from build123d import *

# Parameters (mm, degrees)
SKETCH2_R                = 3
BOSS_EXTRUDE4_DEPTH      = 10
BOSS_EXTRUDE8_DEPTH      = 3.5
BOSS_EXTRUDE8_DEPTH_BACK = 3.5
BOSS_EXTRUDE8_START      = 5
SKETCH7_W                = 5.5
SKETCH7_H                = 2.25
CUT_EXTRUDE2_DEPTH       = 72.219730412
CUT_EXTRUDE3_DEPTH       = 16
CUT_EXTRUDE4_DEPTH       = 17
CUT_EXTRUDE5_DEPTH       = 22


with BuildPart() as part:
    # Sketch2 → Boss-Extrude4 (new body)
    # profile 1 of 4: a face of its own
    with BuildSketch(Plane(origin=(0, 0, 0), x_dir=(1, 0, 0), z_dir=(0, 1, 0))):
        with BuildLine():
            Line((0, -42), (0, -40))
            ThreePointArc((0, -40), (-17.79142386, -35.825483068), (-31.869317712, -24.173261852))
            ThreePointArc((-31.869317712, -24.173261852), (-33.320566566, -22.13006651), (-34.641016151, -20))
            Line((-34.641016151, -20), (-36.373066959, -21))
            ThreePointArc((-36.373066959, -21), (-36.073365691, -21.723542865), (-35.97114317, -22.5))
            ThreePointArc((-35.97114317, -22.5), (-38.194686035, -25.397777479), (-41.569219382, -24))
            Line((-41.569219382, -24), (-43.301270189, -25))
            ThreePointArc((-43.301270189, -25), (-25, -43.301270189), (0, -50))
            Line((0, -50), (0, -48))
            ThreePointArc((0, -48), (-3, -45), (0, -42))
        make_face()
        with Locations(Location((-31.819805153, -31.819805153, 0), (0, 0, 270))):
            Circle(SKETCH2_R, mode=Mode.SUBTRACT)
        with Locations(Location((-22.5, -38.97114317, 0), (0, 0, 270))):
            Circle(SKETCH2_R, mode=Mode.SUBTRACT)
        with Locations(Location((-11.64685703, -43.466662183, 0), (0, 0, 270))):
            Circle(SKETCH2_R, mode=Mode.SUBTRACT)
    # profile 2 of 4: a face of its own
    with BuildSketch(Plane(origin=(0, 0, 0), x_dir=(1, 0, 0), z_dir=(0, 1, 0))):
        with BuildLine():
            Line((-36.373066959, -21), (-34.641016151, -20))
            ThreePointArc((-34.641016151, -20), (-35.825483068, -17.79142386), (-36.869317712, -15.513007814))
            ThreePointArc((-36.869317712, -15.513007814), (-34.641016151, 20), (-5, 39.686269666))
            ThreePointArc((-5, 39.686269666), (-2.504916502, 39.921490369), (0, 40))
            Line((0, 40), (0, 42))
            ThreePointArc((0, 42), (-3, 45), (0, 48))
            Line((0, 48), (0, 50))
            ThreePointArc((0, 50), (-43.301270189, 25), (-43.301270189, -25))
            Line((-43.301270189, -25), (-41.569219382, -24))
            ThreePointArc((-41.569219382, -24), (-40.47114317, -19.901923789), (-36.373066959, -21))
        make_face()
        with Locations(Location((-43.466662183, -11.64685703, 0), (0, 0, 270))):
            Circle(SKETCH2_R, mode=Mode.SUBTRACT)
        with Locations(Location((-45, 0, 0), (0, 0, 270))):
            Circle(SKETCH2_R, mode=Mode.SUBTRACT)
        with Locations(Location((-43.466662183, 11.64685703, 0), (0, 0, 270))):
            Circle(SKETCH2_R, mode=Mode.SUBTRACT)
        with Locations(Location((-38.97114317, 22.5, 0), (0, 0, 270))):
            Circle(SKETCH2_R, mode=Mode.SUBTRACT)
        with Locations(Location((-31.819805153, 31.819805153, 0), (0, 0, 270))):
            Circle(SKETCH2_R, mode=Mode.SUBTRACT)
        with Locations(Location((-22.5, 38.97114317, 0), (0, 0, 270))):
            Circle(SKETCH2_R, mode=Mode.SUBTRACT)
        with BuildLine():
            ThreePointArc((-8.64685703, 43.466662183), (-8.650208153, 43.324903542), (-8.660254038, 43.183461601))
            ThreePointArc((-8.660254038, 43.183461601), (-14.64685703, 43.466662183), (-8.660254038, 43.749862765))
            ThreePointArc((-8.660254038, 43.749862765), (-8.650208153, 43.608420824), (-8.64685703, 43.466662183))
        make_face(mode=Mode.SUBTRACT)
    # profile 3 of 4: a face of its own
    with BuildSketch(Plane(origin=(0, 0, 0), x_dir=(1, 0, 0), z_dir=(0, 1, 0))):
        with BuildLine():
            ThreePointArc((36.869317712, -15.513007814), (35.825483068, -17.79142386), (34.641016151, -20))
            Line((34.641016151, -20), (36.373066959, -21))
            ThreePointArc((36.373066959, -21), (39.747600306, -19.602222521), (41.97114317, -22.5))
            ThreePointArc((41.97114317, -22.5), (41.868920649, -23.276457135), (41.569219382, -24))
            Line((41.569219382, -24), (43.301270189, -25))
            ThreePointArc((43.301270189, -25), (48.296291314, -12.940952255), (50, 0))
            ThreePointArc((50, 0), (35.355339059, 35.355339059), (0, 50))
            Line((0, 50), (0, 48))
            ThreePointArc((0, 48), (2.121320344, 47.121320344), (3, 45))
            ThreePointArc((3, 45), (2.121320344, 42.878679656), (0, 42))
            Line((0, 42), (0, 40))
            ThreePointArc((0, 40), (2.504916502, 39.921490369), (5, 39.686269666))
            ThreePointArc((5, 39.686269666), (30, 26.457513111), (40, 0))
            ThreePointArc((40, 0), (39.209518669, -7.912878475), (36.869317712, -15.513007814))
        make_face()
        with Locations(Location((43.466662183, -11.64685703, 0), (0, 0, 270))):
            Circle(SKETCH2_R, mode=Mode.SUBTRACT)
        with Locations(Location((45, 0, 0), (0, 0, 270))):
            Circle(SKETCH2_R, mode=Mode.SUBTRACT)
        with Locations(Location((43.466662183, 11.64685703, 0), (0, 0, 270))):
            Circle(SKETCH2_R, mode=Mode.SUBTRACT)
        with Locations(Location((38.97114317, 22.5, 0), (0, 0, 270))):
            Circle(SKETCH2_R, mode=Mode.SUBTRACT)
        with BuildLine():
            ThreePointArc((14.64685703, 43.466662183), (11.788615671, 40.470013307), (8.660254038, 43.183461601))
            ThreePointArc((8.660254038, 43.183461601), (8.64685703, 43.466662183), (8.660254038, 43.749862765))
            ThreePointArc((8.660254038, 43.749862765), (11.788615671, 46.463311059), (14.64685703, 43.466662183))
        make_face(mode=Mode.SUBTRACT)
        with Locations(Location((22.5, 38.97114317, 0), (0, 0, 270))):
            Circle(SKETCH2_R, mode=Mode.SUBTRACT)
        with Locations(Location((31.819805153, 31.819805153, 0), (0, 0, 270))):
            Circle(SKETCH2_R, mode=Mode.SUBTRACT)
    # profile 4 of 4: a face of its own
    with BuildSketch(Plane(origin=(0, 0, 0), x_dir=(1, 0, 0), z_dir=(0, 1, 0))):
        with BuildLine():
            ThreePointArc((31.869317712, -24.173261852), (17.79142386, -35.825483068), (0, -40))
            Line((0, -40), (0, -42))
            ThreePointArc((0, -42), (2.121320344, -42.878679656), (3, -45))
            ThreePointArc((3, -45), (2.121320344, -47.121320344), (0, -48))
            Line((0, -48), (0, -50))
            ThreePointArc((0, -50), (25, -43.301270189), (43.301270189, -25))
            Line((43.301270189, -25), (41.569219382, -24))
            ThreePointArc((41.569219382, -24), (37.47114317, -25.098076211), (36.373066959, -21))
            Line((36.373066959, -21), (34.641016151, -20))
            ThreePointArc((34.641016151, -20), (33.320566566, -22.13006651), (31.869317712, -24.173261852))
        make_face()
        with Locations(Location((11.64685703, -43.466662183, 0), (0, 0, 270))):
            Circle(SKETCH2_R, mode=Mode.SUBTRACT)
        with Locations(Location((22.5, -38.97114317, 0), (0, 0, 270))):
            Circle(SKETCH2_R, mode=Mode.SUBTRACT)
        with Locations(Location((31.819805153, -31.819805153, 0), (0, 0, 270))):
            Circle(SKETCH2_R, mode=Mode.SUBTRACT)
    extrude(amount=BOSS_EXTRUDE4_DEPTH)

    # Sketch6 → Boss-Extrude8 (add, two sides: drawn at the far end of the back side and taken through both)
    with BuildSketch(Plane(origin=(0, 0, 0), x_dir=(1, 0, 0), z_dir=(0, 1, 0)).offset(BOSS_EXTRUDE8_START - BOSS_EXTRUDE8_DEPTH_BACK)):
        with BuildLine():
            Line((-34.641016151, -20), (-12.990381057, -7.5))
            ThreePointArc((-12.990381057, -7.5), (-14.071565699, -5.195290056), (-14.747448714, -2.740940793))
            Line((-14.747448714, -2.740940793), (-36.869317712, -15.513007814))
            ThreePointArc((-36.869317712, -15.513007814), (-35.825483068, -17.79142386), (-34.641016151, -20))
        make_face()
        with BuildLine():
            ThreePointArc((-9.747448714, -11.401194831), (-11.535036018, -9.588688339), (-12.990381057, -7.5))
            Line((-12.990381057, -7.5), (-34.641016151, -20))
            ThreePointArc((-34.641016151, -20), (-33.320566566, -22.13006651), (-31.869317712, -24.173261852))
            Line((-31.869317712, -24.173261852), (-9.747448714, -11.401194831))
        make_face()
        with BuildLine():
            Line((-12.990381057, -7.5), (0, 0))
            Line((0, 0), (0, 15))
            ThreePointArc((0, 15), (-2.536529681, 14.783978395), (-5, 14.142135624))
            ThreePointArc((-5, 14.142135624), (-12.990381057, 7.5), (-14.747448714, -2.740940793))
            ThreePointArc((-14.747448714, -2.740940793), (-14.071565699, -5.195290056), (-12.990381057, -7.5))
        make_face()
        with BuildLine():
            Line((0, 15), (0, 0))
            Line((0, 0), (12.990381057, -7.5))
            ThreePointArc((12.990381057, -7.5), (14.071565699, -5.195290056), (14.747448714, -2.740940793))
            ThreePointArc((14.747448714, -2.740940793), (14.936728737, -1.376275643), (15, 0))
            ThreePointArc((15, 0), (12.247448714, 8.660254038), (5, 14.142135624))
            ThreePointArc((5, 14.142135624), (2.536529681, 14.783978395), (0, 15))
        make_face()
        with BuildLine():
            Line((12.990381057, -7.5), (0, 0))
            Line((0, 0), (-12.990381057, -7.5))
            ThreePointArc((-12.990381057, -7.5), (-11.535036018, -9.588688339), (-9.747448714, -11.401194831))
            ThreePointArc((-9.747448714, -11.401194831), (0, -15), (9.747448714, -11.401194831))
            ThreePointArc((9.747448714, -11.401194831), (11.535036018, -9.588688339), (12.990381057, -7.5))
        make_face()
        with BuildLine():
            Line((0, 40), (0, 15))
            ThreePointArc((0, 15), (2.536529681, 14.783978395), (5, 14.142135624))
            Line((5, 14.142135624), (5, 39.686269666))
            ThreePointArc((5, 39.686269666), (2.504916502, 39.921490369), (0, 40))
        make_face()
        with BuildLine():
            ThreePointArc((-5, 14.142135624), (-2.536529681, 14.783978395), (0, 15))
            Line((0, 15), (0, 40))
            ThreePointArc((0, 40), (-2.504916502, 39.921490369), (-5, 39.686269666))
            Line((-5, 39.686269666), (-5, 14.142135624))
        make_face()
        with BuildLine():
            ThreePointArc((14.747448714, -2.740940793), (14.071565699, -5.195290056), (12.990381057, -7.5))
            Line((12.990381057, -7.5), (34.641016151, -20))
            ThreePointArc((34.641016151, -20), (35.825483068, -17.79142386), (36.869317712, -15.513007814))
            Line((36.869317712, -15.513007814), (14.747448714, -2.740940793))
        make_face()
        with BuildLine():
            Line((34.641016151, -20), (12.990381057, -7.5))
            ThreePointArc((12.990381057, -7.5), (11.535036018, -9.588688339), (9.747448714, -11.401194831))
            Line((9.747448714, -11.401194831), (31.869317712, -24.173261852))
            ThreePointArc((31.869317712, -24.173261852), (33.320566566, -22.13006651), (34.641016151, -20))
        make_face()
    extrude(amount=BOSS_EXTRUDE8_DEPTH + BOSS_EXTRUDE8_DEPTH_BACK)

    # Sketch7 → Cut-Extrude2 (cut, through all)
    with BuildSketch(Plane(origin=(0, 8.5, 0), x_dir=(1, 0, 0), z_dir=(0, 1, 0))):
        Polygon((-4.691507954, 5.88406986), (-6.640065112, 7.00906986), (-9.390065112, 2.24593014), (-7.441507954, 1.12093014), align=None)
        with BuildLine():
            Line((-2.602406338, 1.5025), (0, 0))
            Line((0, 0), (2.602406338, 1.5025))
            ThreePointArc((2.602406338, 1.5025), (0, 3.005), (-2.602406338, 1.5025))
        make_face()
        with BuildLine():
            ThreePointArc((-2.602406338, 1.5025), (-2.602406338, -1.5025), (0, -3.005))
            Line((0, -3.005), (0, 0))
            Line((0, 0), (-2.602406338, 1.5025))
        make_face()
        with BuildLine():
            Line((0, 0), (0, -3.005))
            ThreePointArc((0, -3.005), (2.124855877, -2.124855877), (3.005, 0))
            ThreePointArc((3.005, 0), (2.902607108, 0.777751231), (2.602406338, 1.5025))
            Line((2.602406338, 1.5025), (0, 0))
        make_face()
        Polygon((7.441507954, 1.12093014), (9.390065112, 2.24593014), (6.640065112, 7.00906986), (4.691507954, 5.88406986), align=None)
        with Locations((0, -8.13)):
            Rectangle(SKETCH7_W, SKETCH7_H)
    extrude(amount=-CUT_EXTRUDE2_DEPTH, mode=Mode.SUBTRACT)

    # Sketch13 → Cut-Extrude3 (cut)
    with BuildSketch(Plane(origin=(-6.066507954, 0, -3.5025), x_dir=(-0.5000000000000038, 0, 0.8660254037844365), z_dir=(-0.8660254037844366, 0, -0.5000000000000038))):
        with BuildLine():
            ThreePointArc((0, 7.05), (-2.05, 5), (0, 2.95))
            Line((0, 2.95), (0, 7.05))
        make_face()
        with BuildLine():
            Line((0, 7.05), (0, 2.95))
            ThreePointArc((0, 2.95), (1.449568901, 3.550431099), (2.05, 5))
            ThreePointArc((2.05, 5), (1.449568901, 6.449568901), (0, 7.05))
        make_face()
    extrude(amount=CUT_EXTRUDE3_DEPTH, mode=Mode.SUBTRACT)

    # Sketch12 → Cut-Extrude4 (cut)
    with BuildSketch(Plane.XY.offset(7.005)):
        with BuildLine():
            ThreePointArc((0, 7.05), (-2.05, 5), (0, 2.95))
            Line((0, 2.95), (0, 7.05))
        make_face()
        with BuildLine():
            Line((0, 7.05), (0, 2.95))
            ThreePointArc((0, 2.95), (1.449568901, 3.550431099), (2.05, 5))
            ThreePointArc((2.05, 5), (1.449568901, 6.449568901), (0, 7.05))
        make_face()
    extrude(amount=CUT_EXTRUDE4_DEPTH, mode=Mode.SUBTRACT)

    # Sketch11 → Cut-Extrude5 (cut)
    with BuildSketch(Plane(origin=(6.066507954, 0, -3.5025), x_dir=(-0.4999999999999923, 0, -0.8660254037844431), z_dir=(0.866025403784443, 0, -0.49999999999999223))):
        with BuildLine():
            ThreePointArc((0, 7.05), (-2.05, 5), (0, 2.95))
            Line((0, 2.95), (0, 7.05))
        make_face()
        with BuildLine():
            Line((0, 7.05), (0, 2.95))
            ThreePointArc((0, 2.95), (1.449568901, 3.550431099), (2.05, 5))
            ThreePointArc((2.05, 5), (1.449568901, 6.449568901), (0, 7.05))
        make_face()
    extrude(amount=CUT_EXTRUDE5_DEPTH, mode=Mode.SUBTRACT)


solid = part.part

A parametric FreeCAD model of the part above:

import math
import FreeCAD as App
import Part
import Sketcher
from FreeCAD import Vector
Q = App.Units.Quantity

doc = App.newDocument("Part")
body = doc.addObject("PartDesign::Body", "Body")

# Sketch on XZ plane
sketch1 = body.newObject("Sketcher::SketchObject", "Sketch")
sketch1.AttachmentSupport = (doc.getObject("XZ_Plane"), [""])
sketch1.MapMode = "FlatFace"
sketch1.addGeometry(Part.ArcOfCircle(Part.Circle(Vector(0, 0, 0), Vector(0, 0, 1), 50), math.radians(90), math.radians(150)), False)
sketch1.addGeometry(Part.ArcOfCircle(Part.Circle(Vector(0, 0, 0), Vector(0, 0, 1), 50), math.radians(30), math.radians(90)), False)
sketch1.addGeometry(Part.ArcOfCircle(Part.Circle(Vector(0, 0, 0), Vector(0, 0, 1), 50), math.radians(0), math.radians(30)), False)
sketch1.addGeometry(Part.ArcOfCircle(Part.Circle(Vector(0, 0, 0), Vector(0, 0, 1), 50), math.radians(-90), math.radians(0)), False)
sketch1.addGeometry(Part.ArcOfCircle(Part.Circle(Vector(0, 0, 0), Vector(0, 0, 1), 50), math.radians(150), math.radians(270)), False)
sketch1.addGeometry(Part.ArcOfCircle(Part.Circle(Vector(0, 45, 0), Vector(0, 0, 1), 3), math.radians(90), math.radians(270)), False)
sketch1.addGeometry(Part.ArcOfCircle(Part.Circle(Vector(0, 45, 0), Vector(0, 0, 1), 3), math.radians(-90), math.radians(0)), False)
sketch1.addGeometry(Part.ArcOfCircle(Part.Circle(Vector(0, 45, 0), Vector(0, 0, 1), 3), math.radians(0), math.radians(90)), False)
sketch1.addGeometry(Part.ArcOfCircle(Part.Circle(Vector(0, 0, 0), Vector(0, 0, 1), 40), math.radians(90), math.radians(143)), False)
sketch1.addGeometry(Part.ArcOfCircle(Part.Circle(Vector(0, 0, 0), Vector(0, 0, 1), 40), math.radians(142.82), math.radians(150)), False)
sketch1.addGeometry(Part.ArcOfCircle(Part.Circle(Vector(0, 0, 0), Vector(0, 0, 1), 40), math.radians(150), math.radians(157.18)), False)
sketch1.addGeometry(Part.ArcOfCircle(Part.Circle(Vector(0, 0, 0), Vector(0, 0, 1), 40), math.radians(157), math.radians(263)), False)
sketch1.addGeometry(Part.ArcOfCircle(Part.Circle(Vector(0, 0, 0), Vector(0, 0, 1), 40), math.radians(-97.18), math.radians(-90)), False)
sketch1.addGeometry(Part.ArcOfCircle(Part.Circle(Vector(0, 0, 0), Vector(0, 0, 1), 40), math.radians(-90), math.radians(-82.82)), False)
sketch1.addGeometry(Part.ArcOfCircle(Part.Circle(Vector(0, 0, 0), Vector(0, 0, 1), 40), math.radians(-83), math.radians(0)), False)
sketch1.addGeometry(Part.ArcOfCircle(Part.Circle(Vector(0, 0, 0), Vector(0, 0, 1), 40), math.radians(0), math.radians(23)), False)
sketch1.addGeometry(Part.ArcOfCircle(Part.Circle(Vector(0, 0, 0), Vector(0, 0, 1), 40), math.radians(22.82), math.radians(30)), False)
sketch1.addGeometry(Part.ArcOfCircle(Part.Circle(Vector(0, 0, 0), Vector(0, 0, 1), 40), math.radians(30), math.radians(37.18)), False)
sketch1.addGeometry(Part.ArcOfCircle(Part.Circle(Vector(0, 0, 0), Vector(0, 0, 1), 40), math.radians(37), math.radians(90)), False)
sketch1.addGeometry(Part.ArcOfCircle(Part.Circle(Vector(-38.97, 22.5, 0), Vector(0, 0, 1), 3), math.radians(-30), math.radians(0)), False)
sketch1.addGeometry(Part.ArcOfCircle(Part.Circle(Vector(-38.97, 22.5, 0), Vector(0, 0, 1), 3), math.radians(0), math.radians(150)), False)
sketch1.addGeometry(Part.ArcOfCircle(Part.Circle(Vector(-38.97, 22.5, 0), Vector(0, 0, 1), 3), math.radians(150), math.radians(330)), False)
sketch1.addGeometry(Part.Circle(Vector(-22.5, 38.97, 0), Vector(0, 0, 1), 3), False)
sketch1.addGeometry(Part.Circle(Vector(-11.65, 43.47, 0), Vector(0, 0, 1), 3), False)
sketch1.addGeometry(Part.Circle(Vector(-31.82, 31.82, 0), Vector(0, 0, 1), 3), False)
sketch1.addGeometry(Part.Circle(Vector(31.82, 31.82, 0), Vector(0, 0, 1), 3), False)
sketch1.addGeometry(Part.ArcOfCircle(Part.Circle(Vector(38.97, 22.5, 0), Vector(0, 0, 1), 3), math.radians(30), math.radians(210)), False)
sketch1.addGeometry(Part.ArcOfCircle(Part.Circle(Vector(38.97, 22.5, 0), Vector(0, 0, 1), 3), math.radians(-150), math.radians(0)), False)
sketch1.addGeometry(Part.ArcOfCircle(Part.Circle(Vector(38.97, 22.5, 0), Vector(0, 0, 1), 3), math.radians(0), math.radians(30)), False)
sketch1.addGeometry(Part.Circle(Vector(22.5, 38.97, 0), Vector(0, 0, 1), 3), False)
sketch1.addGeometry(Part.Circle(Vector(11.65, 43.47, 0), Vector(0, 0, 1), 3), False)
sketch1.addGeometry(Part.ArcOfCircle(Part.Circle(Vector(-11.65, -43.47, 0), Vector(0, 0, 1), 3), math.radians(0), math.radians(5.42)), False)
sketch1.addGeometry(Part.ArcOfCircle(Part.Circle(Vector(-11.65, -43.47, 0), Vector(0, 0, 1), 3), math.radians(5), math.radians(355)), False)
sketch1.addGeometry(Part.ArcOfCircle(Part.Circle(Vector(-11.65, -43.47, 0), Vector(0, 0, 1), 3), math.radians(-5.42), math.radians(0)), False)
sketch1.addGeometry(Part.ArcOfCircle(Part.Circle(Vector(0, -45, 0), Vector(0, 0, 1), 3), math.radians(90), math.radians(270)), False)
sketch1.addGeometry(Part.ArcOfCircle(Part.Circle(Vector(0, -45, 0), Vector(0, 0, 1), 3), math.radians(-90), math.radians(0)), False)
sketch1.addGeometry(Part.ArcOfCircle(Part.Circle(Vector(0, -45, 0), Vector(0, 0, 1), 3), math.radians(0), math.radians(90)), False)
sketch1.addGeometry(Part.Circle(Vector(-43.47, 11.65, 0), Vector(0, 0, 1), 3), False)
sketch1.addGeometry(Part.Circle(Vector(-45, 0, 0), Vector(0, 0, 1), 3), False)
sketch1.addGeometry(Part.Circle(Vector(-43.47, -11.65, 0), Vector(0, 0, 1), 3), False)
sketch1.addGeometry(Part.Circle(Vector(-38.97, -22.5, 0), Vector(0, 0, 1), 3), False)
sketch1.addGeometry(Part.Circle(Vector(-31.82, -31.82, 0), Vector(0, 0, 1), 3), False)
sketch1.addGeometry(Part.Circle(Vector(-22.5, -38.97, 0), Vector(0, 0, 1), 3), False)
sketch1.addGeometry(Part.Circle(Vector(31.82, -31.82, 0), Vector(0, 0, 1), 3), False)
sketch1.addGeometry(Part.ArcOfCircle(Part.Circle(Vector(11.65, -43.47, 0), Vector(0, 0, 1), 3), math.radians(0), math.radians(175)), False)
sketch1.addGeometry(Part.ArcOfCircle(Part.Circle(Vector(11.65, -43.47, 0), Vector(0, 0, 1), 3), math.radians(174.58), math.radians(185.42)), False)
sketch1.addGeometry(Part.ArcOfCircle(Part.Circle(Vector(11.65, -43.47, 0), Vector(0, 0, 1), 3), math.radians(-175), math.radians(0)), False)
sketch1.addGeometry(Part.Circle(Vector(38.97, -22.5, 0), Vector(0, 0, 1), 3), False)
sketch1.addGeometry(Part.Circle(Vector(22.5, -38.97, 0), Vector(0, 0, 1), 3), False)
sketch1.addGeometry(Part.Circle(Vector(43.47, 11.65, 0), Vector(0, 0, 1), 3), False)
sketch1.addGeometry(Part.Circle(Vector(45, 0, 0), Vector(0, 0, 1), 3), False)
sketch1.addGeometry(Part.Circle(Vector(43.47, -11.65, 0), Vector(0, 0, 1), 3), False)
sketch1.addConstraint(Sketcher.Constraint("Tangent", 0, 1, 1, 2))
sketch1.addConstraint(Sketcher.Constraint("Tangent", 1, 1, 2, 2))
sketch1.addConstraint(Sketcher.Constraint("Tangent", 2, 1, 3, 2))
sketch1.addConstraint(Sketcher.Constraint("Tangent", 3, 1, 4, 2))
sketch1.addConstraint(Sketcher.Constraint("Tangent", 4, 1, 0, 2))
sketch1.addConstraint(Sketcher.Constraint("Tangent", 5, 2, 6, 1))
sketch1.addConstraint(Sketcher.Constraint("Tangent", 6, 2, 7, 1))
sketch1.addConstraint(Sketcher.Constraint("Tangent", 7, 2, 5, 1))
sketch1.addConstraint(Sketcher.Constraint("Tangent", 8, 2, 9, 1))
sketch1.addConstraint(Sketcher.Constraint("Tangent", 9, 2, 10, 1))
sketch1.addConstraint(Sketcher.Constraint("Tangent", 10, 2, 11, 1))
sketch1.addConstraint(Sketcher.Constraint("Tangent", 11, 2, 12, 1))
sketch1.addConstraint(Sketcher.Constraint("Tangent", 12, 2, 13, 1))
sketch1.addConstraint(Sketcher.Constraint("Tangent", 13, 2, 14, 1))
sketch1.addConstraint(Sketcher.Constraint("Tangent", 14, 2, 15, 1))
sketch1.addConstraint(Sketcher.Constraint("Tangent", 15, 2, 16, 1))
sketch1.addConstraint(Sketcher.Constraint("Tangent", 16, 2, 17, 1))
sketch1.addConstraint(Sketcher.Constraint("Tangent", 17, 2, 18, 1))
sketch1.addConstraint(Sketcher.Constraint("Tangent", 18, 2, 8, 1))
sketch1.addConstraint(Sketcher.Constraint("Tangent", 19, 2, 20, 1))
sketch1.addConstraint(Sketcher.Constraint("Tangent", 20, 2, 21, 1))
sketch1.addConstraint(Sketcher.Constraint("Tangent", 21, 2, 19, 1))
sketch1.addConstraint(Sketcher.Constraint("Tangent", 26, 2, 27, 1))
sketch1.addConstraint(Sketcher.Constraint("Tangent", 27, 2, 28, 1))
sketch1.addConstraint(Sketcher.Constraint("Tangent", 28, 2, 26, 1))
sketch1.addConstraint(Sketcher.Constraint("Tangent", 31, 2, 32, 1))
sketch1.addConstraint(Sketcher.Constraint("Tangent", 32, 2, 33, 1))
sketch1.addConstraint(Sketcher.Constraint("Tangent", 33, 2, 31, 1))
sketch1.addConstraint(Sketcher.Constraint("Tangent", 34, 2, 35, 1))
sketch1.addConstraint(Sketcher.Constraint("Tangent", 35, 2, 36, 1))
sketch1.addConstraint(Sketcher.Constraint("Tangent", 36, 2, 34, 1))
sketch1.addConstraint(Sketcher.Constraint("Tangent", 44, 2, 45, 1))
sketch1.addConstraint(Sketcher.Constraint("Tangent", 45, 2, 46, 1))
sketch1.addConstraint(Sketcher.Constraint("Tangent", 46, 2, 44, 1))
sketch1.addConstraint(Sketcher.Constraint("Coincident", 0, 3, -1, 1))
sketch1.addConstraint(Sketcher.Constraint("Coincident", 2, 3, -1, 1))
sketch1.addConstraint(Sketcher.Constraint("Coincident", 8, 3, -1, 1))
sketch1.addConstraint(Sketcher.Constraint("Coincident", 10, 3, -1, 1))
sketch1.addConstraint(Sketcher.Constraint("Coincident", 12, 3, -1, 1))
sketch1.addConstraint(Sketcher.Constraint("Coincident", 14, 3, -1, 1))
sketch1.addConstraint(Sketcher.Constraint("Coincident", 16, 3, -1, 1))
sketch1.addConstraint(Sketcher.Constraint("Equal", 7, 19))
sketch1.addConstraint(Sketcher.Constraint("Equal", 21, 22))
sketch1.addConstraint(Sketcher.Constraint("Equal", 22, 23))
sketch1.addConstraint(Sketcher.Constraint("Equal", 23, 24))
sketch1.addConstraint(Sketcher.Constraint("Equal", 24, 25))
sketch1.addConstraint(Sketcher.Constraint("Equal", 25, 26))
sketch1.addConstraint(Sketcher.Constraint("Equal", 28, 29))
sketch1.addConstraint(Sketcher.Constraint("Equal", 29, 30))
sketch1.addConstraint(Sketcher.Constraint("Equal", 30, 31))
sketch1.addConstraint(Sketcher.Constraint("Equal", 33, 34))
sketch1.addConstraint(Sketcher.Constraint("Equal", 36, 37))
sketch1.addConstraint(Sketcher.Constraint("Equal", 37, 38))
sketch1.addConstraint(Sketcher.Constraint("Equal", 38, 39))
sketch1.addConstraint(Sketcher.Constraint("Equal", 39, 40))
sketch1.addConstraint(Sketcher.Constraint("Equal", 40, 41))
sketch1.addConstraint(Sketcher.Constraint("Equal", 41, 42))
sketch1.addConstraint(Sketcher.Constraint("Equal", 42, 43))
sketch1.addConstraint(Sketcher.Constraint("Equal", 43, 44))
sketch1.addConstraint(Sketcher.Constraint("Equal", 46, 47))
sketch1.addConstraint(Sketcher.Constraint("Equal", 47, 48))
sketch1.addConstraint(Sketcher.Constraint("Equal", 48, 49))
sketch1.addConstraint(Sketcher.Constraint("Equal", 49, 50))
sketch1.addConstraint(Sketcher.Constraint("Equal", 50, 51))
sketch1.addConstraint(Sketcher.Constraint("Symmetric", 30, 3, 31, 3, -1, 1))
sketch1.addConstraint(Sketcher.Constraint("Symmetric", 5, 3, 34, 3, -1, 1))
sketch1.addConstraint(Sketcher.Constraint("Symmetric", 26, 3, 40, 3, -1, 1))
sketch1.addConstraint(Sketcher.Constraint("Symmetric", 25, 3, 41, 3, -1, 1))
sketch1.addConstraint(Sketcher.Constraint("Symmetric", 29, 3, 42, 3, -1, 1))
sketch1.addConstraint(Sketcher.Constraint("Symmetric", 24, 3, 43, 3, -1, 1))
sketch1.addConstraint(Sketcher.Constraint("Symmetric", 23, 3, 44, 3, -1, 1))
sketch1.addConstraint(Sketcher.Constraint("Symmetric", 19, 3, 47, 3, -1, 1))
sketch1.addConstraint(Sketcher.Constraint("Symmetric", 22, 3, 48, 3, -1, 1))
sketch1.addConstraint(Sketcher.Constraint("Symmetric", 39, 3, 49, 3, -1, 1))
sketch1.addConstraint(Sketcher.Constraint("Symmetric", 38, 3, 50, 3, -1, 1))
sketch1.addConstraint(Sketcher.Constraint("Symmetric", 37, 3, 51, 3, -1, 1))
sketch1.addConstraint(Sketcher.Constraint("Symmetric", 24, 3, 25, 3, -2))
sketch1.addConstraint(Sketcher.Constraint("Symmetric", 19, 3, 26, 3, -2))
sketch1.addConstraint(Sketcher.Constraint("Symmetric", 22, 3, 29, 3, -2))
sketch1.addConstraint(Sketcher.Constraint("Symmetric", 23, 3, 30, 3, -2))
sketch1.addConstraint(Sketcher.Constraint("Symmetric", 37, 3, 49, 3, -2))
sketch1.addConstraint(Sketcher.Constraint("Symmetric", 6, 2, 35, 2, -1))
sketch1.addConstraint(Sketcher.Constraint("PointOnObject", 38, 3, -1))
sketch1.addConstraint(Sketcher.Constraint("PointOnObject", 0, 1, -2))
sketch1.addConstraint(Sketcher.Constraint("PointOnObject", 2, 1, -1))
sketch1.addConstraint(Sketcher.Constraint("PointOnObject", 3, 1, -2))
sketch1.addConstraint(Sketcher.Constraint("PointOnObject", 5, 2, -2))
sketch1.addConstraint(Sketcher.Constraint("PointOnObject", 7, 2, -2))
sketch1.addConstraint(Sketcher.Constraint("PointOnObject", 12, 2, -2))
sketch1.addConstraint(Sketcher.Constraint("PointOnObject", 14, 2, -1))
sketch1.addConstraint(Sketcher.Constraint("PointOnObject", 18, 2, -2))
sketch1.addConstraint(Sketcher.Constraint("PointOnObject", 34, 2, -2))
sketch1.addConstraint(Sketcher.Constraint("PointOnObject", 36, 2, -2))
sketch1.addConstraint(Sketcher.Constraint("Horizontal", 1, 1, 4, 1))
sketch1.addConstraint(Sketcher.Constraint("Horizontal", 7, 3, 6, 2))
sketch1.addConstraint(Sketcher.Constraint("Horizontal", 11, 2, 13, 2))
sketch1.addConstraint(Sketcher.Constraint("Horizontal", 10, 2, 15, 2))
sketch1.addConstraint(Sketcher.Constraint("Horizontal", 9, 2, 16, 2))
sketch1.addConstraint(Sketcher.Constraint("Horizontal", 8, 2, 17, 2))
sketch1.addConstraint(Sketcher.Constraint("Horizontal", 28, 3, 19, 2))
sketch1.addConstraint(Sketcher.Constraint("Horizontal", 21, 2, 26, 2))
sketch1.addConstraint(Sketcher.Constraint("Horizontal", 19, 2, 27, 2))
sketch1.addConstraint(Sketcher.Constraint("Horizontal", 20, 2, 28, 2))
sketch1.addConstraint(Sketcher.Constraint("Horizontal", 46, 3, 33, 2))
sketch1.addConstraint(Sketcher.Constraint("Horizontal", 31, 2, 44, 2))
sketch1.addConstraint(Sketcher.Constraint("Horizontal", 32, 2, 45, 2))
sketch1.addConstraint(Sketcher.Constraint("Horizontal", 33, 2, 46, 2))
sketch1.addConstraint(Sketcher.Constraint("Vertical", 31, 2, 32, 2))
sketch1.addConstraint(Sketcher.Constraint("Diameter", 22, 6.0))
sketch1.addConstraint(Sketcher.Constraint("Radius", 0, 50.0))
sketch1.addConstraint(Sketcher.Constraint("Radius", 8, 40.0))
sketch1.addConstraint(Sketcher.Constraint("DistanceY", -1, 1, 5, 3, 45.0))
sketch1.addConstraint(Sketcher.Constraint("DistanceX", 38, 3, -1, 1, 45.0))
sketch1.addConstraint(Sketcher.Constraint("DistanceY", -1, 1, 1, 1, 25.0))
sketch1.addConstraint(Sketcher.Constraint("DistanceY", -1, 1, 9, 2, 20.0))
sketch1.addConstraint(Sketcher.Constraint("DistanceX", 11, 2, -1, 1, 5.0))
sketch1.addConstraint(Sketcher.Constraint("DistanceY", -1, 1, 20, 2, 24.0))
sketch1.addConstraint(Sketcher.Constraint("DistanceY", -1, 1, 21, 2, 21.0))
sketch1.addConstraint(Sketcher.Constraint("DistanceY", -1, 1, 19, 3, 22.5))
sketch1.addConstraint(Sketcher.Constraint("DistanceX", 22, 3, -1, 1, 22.5))
sketch1.addConstraint(Sketcher.Constraint("DistanceY", -1, 1, 8, 2, 24.173262))
sketch1.addConstraint(Sketcher.Constraint("DistanceX", 20, 2, -1, 1, 41.569219))
sketch1.addConstraint(Sketcher.Constraint("DistanceY", 31, 2, -1, 1, 43.183462))
sketch1.addConstraint(Sketcher.Constraint("DistanceY", -1, 1, 22, 3, 38.971143))
sketch1.addConstraint(Sketcher.Constraint("DistanceX", 23, 3, -1, 1, 11.646857))
sketch1.addConstraint(Sketcher.Constraint("DistanceY", -1, 1, 23, 3, 43.466662))
sketch1.addConstraint(Sketcher.Constraint("DistanceX", 24, 3, -1, 1, 31.819805))
sketch1.addConstraint(Sketcher.Constraint("DistanceY", -1, 1, 24, 3, 31.819805))
sketch1.addConstraint(Sketcher.Constraint("DistanceX", 37, 3, -1, 1, 43.466662))
sketch1.addConstraint(Sketcher.Constraint("DistanceY", -1, 1, 37, 3, 11.646857))
sketch1.addConstraint(Sketcher.Constraint("DistanceX", 10, 2, -1, 1, 36.869318))
pad1 = body.newObject("PartDesign::Pad", "Pad")
pad1.Profile = sketch1
pad1.Length = 10
pad1.Reversed = True

# Sketch on XZ plane
sketch2 = body.newObject("Sketcher::SketchObject", "Sketch001")
sketch2.AttachmentSupport = (doc.getObject("XZ_Plane"), [""])
sketch2.MapMode = "FlatFace"
sketch2.AttachmentOffset = App.Placement(Vector(0, 0, -5), App.Rotation())
sketch2.addGeometry(Part.LineSegment(Vector(-14.7, 2.7, 0), Vector(-36.9, 15.5, 0)), False)
sketch2.addGeometry(Part.ArcOfCircle(Part.Circle(Vector(0, 0, 0), Vector(0, 0, 1), 40), math.radians(150), math.radians(157.18)), False)
sketch2.addGeometry(Part.ArcOfCircle(Part.Circle(Vector(0, 0, 0), Vector(0, 0, 1), 40), math.radians(142.82), math.radians(150)), False)
sketch2.addGeometry(Part.LineSegment(Vector(-31.9, 24.2, 0), Vector(-9.7, 11.4, 0)), False)
sketch2.addGeometry(Part.ArcOfCircle(Part.Circle(Vector(0, 0, 0), Vector(0, 0, 1), 15), math.radians(49), math.radians(131)), False)
sketch2.addGeometry(Part.LineSegment(Vector(9.7, 11.4, 0), Vector(31.9, 24.2, 0)), False)
sketch2.addGeometry(Part.ArcOfCircle(Part.Circle(Vector(0, 0, 0), Vector(0, 0, 1), 40), math.radians(30), math.radians(37.18)), False)
sketch2.addGeometry(Part.ArcOfCircle(Part.Circle(Vector(0, 0, 0), Vector(0, 0, 1), 40), math.radians(22.82), math.radians(30)), False)
sketch2.addGeometry(Part.LineSegment(Vector(36.9, 15.5, 0), Vector(14.7, 2.7, 0)), False)
sketch2.addGeometry(Part.ArcOfCircle(Part.Circle(Vector(0, 0, 0), Vector(0, 0, 1), 15), math.radians(0), math.radians(10.53)), False)
sketch2.addGeometry(Part.ArcOfCircle(Part.Circle(Vector(0, 0, 0), Vector(0, 0, 1), 15), math.radians(-71), math.radians(0)), False)
sketch2.addGeometry(Part.LineSegment(Vector(5, -14.1, 0), Vector(5, -39.7, 0)), False)
sketch2.addGeometry(Part.ArcOfCircle(Part.Circle(Vector(0, 0, 0), Vector(0, 0, 1), 40), math.radians(-90), math.radians(-82.82)), False)
sketch2.addGeometry(Part.ArcOfCircle(Part.Circle(Vector(0, 0, 0), Vector(0, 0, 1), 40), math.radians(-97.18), math.radians(-90)), False)
sketch2.addGeometry(Part.LineSegment(Vector(-5, -39.7, 0), Vector(-5, -14.1, 0)), False)
sketch2.addGeometry(Part.ArcOfCircle(Part.Circle(Vector(0, 0, 0), Vector(0, 0, 1), 15), math.radians(169), math.radians(251)), False)
sketch2.addConstraint(Sketcher.Constraint("Coincident", 0, 2, 1, 2))
sketch2.addConstraint(Sketcher.Constraint("Tangent", 1, 1, 2, 2))
sketch2.addConstraint(Sketcher.Constraint("Coincident", 2, 1, 3, 1))
sketch2.addConstraint(Sketcher.Constraint("Coincident", 3, 2, 4, 2))
sketch2.addConstraint(Sketcher.Constraint("Coincident", 4, 1, 5, 1))
sketch2.addConstraint(Sketcher.Constraint("Coincident", 5, 2, 6, 2))
sketch2.addConstraint(Sketcher.Constraint("Tangent", 6, 1, 7, 2))
sketch2.addConstraint(Sketcher.Constraint("Coincident", 7, 1, 8, 1))
sketch2.addConstraint(Sketcher.Constraint("Coincident", 8, 2, 9, 2))
sketch2.addConstraint(Sketcher.Constraint("Tangent", 9, 1, 10, 2))
sketch2.addConstraint(Sketcher.Constraint("Coincident", 10, 1, 11, 1))
sketch2.addConstraint(Sketcher.Constraint("Coincident", 11, 2, 12, 2))
sketch2.addConstraint(Sketcher.Constraint("Tangent", 12, 1, 13, 2))
sketch2.addConstraint(Sketcher.Constraint("Coincident", 13, 1, 14, 1))
sketch2.addConstraint(Sketcher.Constraint("Coincident", 14, 2, 15, 2))
sketch2.addConstraint(Sketcher.Constraint("Coincident", 15, 1, 0, 1))
sketch2.addConstraint(Sketcher.Constraint("Vertical", 11))
sketch2.addConstraint(Sketcher.Constraint("Vertical", 14))
sketch2.addConstraint(Sketcher.Constraint("Coincident", 1, 3, -1, 1))
sketch2.addConstraint(Sketcher.Constraint("Coincident", 4, 3, -1, 1))
sketch2.addConstraint(Sketcher.Constraint("Coincident", 6, 3, -1, 1))
sketch2.addConstraint(Sketcher.Constraint("Coincident", 9, 3, -1, 1))
sketch2.addConstraint(Sketcher.Constraint("Coincident", 12, 3, -1, 1))
sketch2.addConstraint(Sketcher.Constraint("Coincident", 15, 3, -1, 1))
sketch2.addConstraint(Sketcher.Constraint("Equal", 1, 2))
sketch2.addConstraint(Sketcher.Constraint("Equal", 2, 6))
sketch2.addConstraint(Sketcher.Constraint("Equal", 6, 7))
sketch2.addConstraint(Sketcher.Constraint("Equal", 4, 9))
sketch2.addConstraint(Sketcher.Constraint("Equal", 9, 10))
sketch2.addConstraint(Sketcher.Constraint("Equal", 7, 12))
sketch2.addConstraint(Sketcher.Constraint("Equal", 12, 13))
sketch2.addConstraint(Sketcher.Constraint("Equal", 10, 15))
sketch2.addConstraint(Sketcher.Constraint("PointOnObject", 9, 1, -1))
sketch2.addConstraint(Sketcher.Constraint("PointOnObject", 12, 1, -2))
sketch2.addConstraint(Sketcher.Constraint("Parallel", 0, 3))
sketch2.addConstraint(Sketcher.Constraint("Parallel", 5, 8))
sketch2.addConstraint(Sketcher.Constraint("Horizontal", 3, 2, 4, 1))
sketch2.addConstraint(Sketcher.Constraint("Horizontal", 2, 1, 5, 2))
sketch2.addConstraint(Sketcher.Constraint("Horizontal", 1, 1, 6, 1))
sketch2.addConstraint(Sketcher.Constraint("Horizontal", 0, 2, 7, 1))
sketch2.addConstraint(Sketcher.Constraint("Horizontal", 11, 2, 13, 1))
sketch2.addConstraint(Sketcher.Constraint("Equal", 0, 3))
sketch2.addConstraint(Sketcher.Constraint("Radius", 1, 40.0))
sketch2.addConstraint(Sketcher.Constraint("Radius", 4, 15.0))
sketch2.addConstraint(Sketcher.Constraint("Angle", 0, Q("150 deg")))
sketch2.addConstraint(Sketcher.Constraint("DistanceY", -1, 1, 1, 1, 20.0))
sketch2.addConstraint(Sketcher.Constraint("DistanceX", -1, 1, 10, 1, 5.0))
sketch2.addConstraint(Sketcher.Constraint("DistanceX", 0, 2, 2, 1, 5.0))
pad2 = body.newObject("PartDesign::Pad", "Pad001")
pad2.Profile = sketch2
pad2.Type = "TwoLengths"
pad2.Length = 3.5
pad2.Length2 = 3.5
pad2.Reversed = True

# Sketch on XZ plane
sketch3 = body.newObject("Sketcher::SketchObject", "Sketch002")
sketch3.AttachmentSupport = (doc.getObject("XZ_Plane"), [""])
sketch3.MapMode = "FlatFace"
sketch3.AttachmentOffset = App.Placement(Vector(0, 0, -8.5), App.Rotation())
sketch3.addGeometry(Part.LineSegment(Vector(-4.7, -5.9, 0), Vector(-6.6, -7, 0)), False)
sketch3.addGeometry(Part.LineSegment(Vector(-6.6, -7, 0), Vector(-9.4, -2.2, 0)), False)
sketch3.addGeometry(Part.LineSegment(Vector(-9.4, -2.2, 0), Vector(-7.4, -1.1, 0)), False)
sketch3.addGeometry(Part.LineSegment(Vector(-7.4, -1.1, 0), Vector(-4.7, -5.9, 0)), False)
sketch3.addGeometry(Part.ArcOfCircle(Part.Circle(Vector(0, 0, 0), Vector(0, 0, 1), 3), math.radians(-150), math.radians(-30)), False)
sketch3.addGeometry(Part.ArcOfCircle(Part.Circle(Vector(0, 0, 0), Vector(0, 0, 1), 3), math.radians(90), math.radians(210)), False)
sketch3.addGeometry(Part.ArcOfCircle(Part.Circle(Vector(0, 0, 0), Vector(0, 0, 1), 3), math.radians(0), math.radians(90)), False)
sketch3.addGeometry(Part.ArcOfCircle(Part.Circle(Vector(0, 0, 0), Vector(0, 0, 1), 3), math.radians(-30), math.radians(0)), False)
sketch3.addGeometry(Part.LineSegment(Vector(7.4, -1.1, 0), Vector(9.4, -2.2, 0)), False)
sketch3.addGeometry(Part.LineSegment(Vector(9.4, -2.2, 0), Vector(6.6, -7, 0)), False)
sketch3.addGeometry(Part.LineSegment(Vector(6.6, -7, 0), Vector(4.7, -5.9, 0)), False)
sketch3.addGeometry(Part.LineSegment(Vector(4.7, -5.9, 0), Vector(7.4, -1.1, 0)), False)
sketch3.addGeometry(Part.LineSegment(Vector(-2.8, 7, 0), Vector(-2.8, 9.3, 0)), False)
sketch3.addGeometry(Part.LineSegment(Vector(-2.8, 9.3, 0), Vector(2.8, 9.3, 0)), False)
sketch3.addGeometry(Part.LineSegment(Vector(2.8, 9.3, 0), Vector(2.8, 7, 0)), False)
sketch3.addGeometry(Part.LineSegment(Vector(2.8, 7, 0), Vector(-2.8, 7, 0)), False)
sketch3.addConstraint(Sketcher.Constraint("Coincident", 0, 2, 1, 1))
sketch3.addConstraint(Sketcher.Constraint("Coincident", 1, 2, 2, 1))
sketch3.addConstraint(Sketcher.Constraint("Coincident", 2, 2, 3, 1))
sketch3.addConstraint(Sketcher.Constraint("Coincident", 3, 2, 0, 1))
sketch3.addConstraint(Sketcher.Constraint("Tangent", 4, 1, 5, 2))
sketch3.addConstraint(Sketcher.Constraint("Tangent", 5, 1, 6, 2))
sketch3.addConstraint(Sketcher.Constraint("Tangent", 6, 1, 7, 2))
sketch3.addConstraint(Sketcher.Constraint("Tangent", 7, 1, 4, 2))
sketch3.addConstraint(Sketcher.Constraint("Coincident", 8, 2, 9, 1))
sketch3.addConstraint(Sketcher.Constraint("Coincident", 9, 2, 10, 1))
sketch3.addConstraint(Sketcher.Constraint("Coincident", 10, 2, 11, 1))
sketch3.addConstraint(Sketcher.Constraint("Coincident", 11, 2, 8, 1))
sketch3.addConstraint(Sketcher.Constraint("Coincident", 12, 2, 13, 1))
sketch3.addConstraint(Sketcher.Constraint("Coincident", 13, 2, 14, 1))
sketch3.addConstraint(Sketcher.Constraint("Coincident", 14, 2, 15, 1))
sketch3.addConstraint(Sketcher.Constraint("Coincident", 15, 2, 12, 1))
sketch3.addConstraint(Sketcher.Constraint("Vertical", 12))
sketch3.addConstraint(Sketcher.Constraint("Horizontal", 13))
sketch3.addConstraint(Sketcher.Constraint("Vertical", 14))
sketch3.addConstraint(Sketcher.Constraint("Horizontal", 15))
sketch3.addConstraint(Sketcher.Constraint("Coincident", 4, 3, -1, 1))
sketch3.addConstraint(Sketcher.Constraint("Equal", 4, 5))
sketch3.addConstraint(Sketcher.Constraint("Symmetric", 1, 2, 8, 2, -2))
sketch3.addConstraint(Sketcher.Constraint("Symmetric", 0, 2, 9, 2, -2))
sketch3.addConstraint(Sketcher.Constraint("Symmetric", 3, 2, 10, 2, -2))
sketch3.addConstraint(Sketcher.Constraint("Symmetric", 2, 2, 11, 2, -2))
sketch3.addConstraint(Sketcher.Constraint("PointOnObject", 5, 1, -2))
sketch3.addConstraint(Sketcher.Constraint("PointOnObject", 6, 1, -1))
sketch3.addConstraint(Sketcher.Constraint("Perpendicular", 0, 1))
sketch3.addConstraint(Sketcher.Constraint("Perpendicular", 1, 2))
sketch3.addConstraint(Sketcher.Constraint("Perpendicular", 2, 3))
sketch3.addConstraint(Sketcher.Constraint("Horizontal", 4, 1, 7, 1))
sketch3.addConstraint(Sketcher.Constraint("Angle", 0, Q("-150 deg")))
sketch3.addConstraint(Sketcher.Constraint("DistanceX", 13, 1, 13, 2, 5.5))
sketch3.addConstraint(Sketcher.Constraint("Radius", 4, 3.005))
sketch3.addConstraint(Sketcher.Constraint("DistanceY", 5, 1, 14, 2, 4.0))
sketch3.addConstraint(Sketcher.Constraint("Distance", 1, 5.5))
sketch3.addConstraint(Sketcher.Constraint("DistanceY", 12, 1, 12, 2, 2.25))
sketch3.addConstraint(Sketcher.Constraint("Distance", 0, 2.25))
sketch3.addConstraint(Sketcher.Constraint("DistanceX", 12, 2, -1, 1, 2.75))
sketch3.addConstraint(Sketcher.Constraint("DistanceY", 4, 1, -1, 1, 1.5025))
sketch3.addConstraint(Sketcher.Constraint("DistanceX", 3, 2, 4, 1, 2.089102))
sketch3.addConstraint(Sketcher.Constraint("DistanceY", 0, 2, -1, 1, 7.00907))
pocket1 = body.newObject("PartDesign::Pocket", "Pocket")
pocket1.Profile = sketch3
pocket1.Type = "ThroughAll"
pocket1.Reversed = True

# Sketch on an angled plane
sketch4 = body.newObject("Sketcher::SketchObject", "Sketch003")
sketch4.Placement = App.Placement(Vector(-6.066508, 0, -3.5025), App.Rotation(Vector(-0.5, 0, 0.866025404), Vector(0, 1, 0), Vector(-0.866025404, 0, -0.5), "ZXY"))
sketch4.addGeometry(Part.ArcOfCircle(Part.Circle(Vector(0, 5, 0), Vector(0, 0, 1), 2), math.radians(90), math.radians(270)), False)
sketch4.addGeometry(Part.ArcOfCircle(Part.Circle(Vector(0, 5, 0), Vector(0, 0, 1), 2.1), math.radians(-90), math.radians(0)), False)
sketch4.addGeometry(Part.ArcOfCircle(Part.Circle(Vector(0, 5, 0), Vector(0, 0, 1), 2.1), math.radians(0), math.radians(90)), False)
sketch4.addConstraint(Sketcher.Constraint("Tangent", 0, 2, 1, 1))
sketch4.addConstraint(Sketcher.Constraint("Tangent", 1, 2, 2, 1))
sketch4.addConstraint(Sketcher.Constraint("Tangent", 2, 2, 0, 1))
sketch4.addConstraint(Sketcher.Constraint("PointOnObject", 0, 3, -2))
sketch4.addConstraint(Sketcher.Constraint("PointOnObject", 0, 2, -2))
sketch4.addConstraint(Sketcher.Constraint("PointOnObject", 2, 2, -2))
sketch4.addConstraint(Sketcher.Constraint("Horizontal", 2, 3, 1, 2))
sketch4.addConstraint(Sketcher.Constraint("Radius", 0, 2.05))
sketch4.addConstraint(Sketcher.Constraint("DistanceY", -1, 1, 0, 3, 5.0))
pocket2 = body.newObject("PartDesign::Pocket", "Pocket001")
pocket2.Profile = sketch4
pocket2.Length = 16
pocket2.Reversed = True

# Sketch on XY plane
sketch5 = body.newObject("Sketcher::SketchObject", "Sketch004")
sketch5.AttachmentSupport = (doc.getObject("XY_Plane"), [""])
sketch5.MapMode = "FlatFace"
sketch5.AttachmentOffset = App.Placement(Vector(0, 0, 7.005), App.Rotation())
sketch5.addGeometry(Part.ArcOfCircle(Part.Circle(Vector(0, 5, 0), Vector(0, 0, 1), 2), math.radians(90), math.radians(270)), False)
sketch5.addGeometry(Part.ArcOfCircle(Part.Circle(Vector(0, 5, 0), Vector(0, 0, 1), 2.1), math.radians(-90), math.radians(0)), False)
sketch5.addGeometry(Part.ArcOfCircle(Part.Circle(Vector(0, 5, 0), Vector(0, 0, 1), 2.1), math.radians(0), math.radians(90)), False)
sketch5.addConstraint(Sketcher.Constraint("Tangent", 0, 2, 1, 1))
sketch5.addConstraint(Sketcher.Constraint("Tangent", 1, 2, 2, 1))
sketch5.addConstraint(Sketcher.Constraint("Tangent", 2, 2, 0, 1))
sketch5.addConstraint(Sketcher.Constraint("PointOnObject", 0, 3, -2))
sketch5.addConstraint(Sketcher.Constraint("PointOnObject", 0, 2, -2))
sketch5.addConstraint(Sketcher.Constraint("PointOnObject", 2, 2, -2))
sketch5.addConstraint(Sketcher.Constraint("Horizontal", 2, 3, 1, 2))
sketch5.addConstraint(Sketcher.Constraint("Radius", 0, 2.05))
sketch5.addConstraint(Sketcher.Constraint("DistanceY", -1, 1, 0, 3, 5.0))
pocket3 = body.newObject("PartDesign::Pocket", "Pocket002")
pocket3.Profile = sketch5
pocket3.Length = 17
pocket3.Reversed = True

# Sketch on an angled plane
sketch6 = body.newObject("Sketcher::SketchObject", "Sketch005")
sketch6.Placement = App.Placement(Vector(6.066508, 0, -3.5025), App.Rotation(Vector(-0.5, 0, -0.866025404), Vector(0, 1, 0), Vector(0.866025404, 0, -0.5), "ZXY"))
sketch6.addGeometry(Part.ArcOfCircle(Part.Circle(Vector(0, 5, 0), Vector(0, 0, 1), 2), math.radians(90), math.radians(270)), False)
sketch6.addGeometry(Part.ArcOfCircle(Part.Circle(Vector(0, 5, 0), Vector(0, 0, 1), 2.1), math.radians(-90), math.radians(0)), False)
sketch6.addGeometry(Part.ArcOfCircle(Part.Circle(Vector(0, 5, 0), Vector(0, 0, 1), 2.1), math.radians(0), math.radians(90)), False)
sketch6.addConstraint(Sketcher.Constraint("Tangent", 0, 2, 1, 1))
sketch6.addConstraint(Sketcher.Constraint("Tangent", 1, 2, 2, 1))
sketch6.addConstraint(Sketcher.Constraint("Tangent", 2, 2, 0, 1))
sketch6.addConstraint(Sketcher.Constraint("PointOnObject", 0, 3, -2))
sketch6.addConstraint(Sketcher.Constraint("PointOnObject", 0, 2, -2))
sketch6.addConstraint(Sketcher.Constraint("PointOnObject", 2, 2, -2))
sketch6.addConstraint(Sketcher.Constraint("Horizontal", 2, 3, 1, 2))
sketch6.addConstraint(Sketcher.Constraint("Radius", 0, 2.05))
sketch6.addConstraint(Sketcher.Constraint("DistanceY", -1, 1, 0, 3, 5.0))
pocket4 = body.newObject("PartDesign::Pocket", "Pocket003")
pocket4.Profile = sketch6
pocket4.Length = 22
pocket4.Reversed = True

doc.recompute()
